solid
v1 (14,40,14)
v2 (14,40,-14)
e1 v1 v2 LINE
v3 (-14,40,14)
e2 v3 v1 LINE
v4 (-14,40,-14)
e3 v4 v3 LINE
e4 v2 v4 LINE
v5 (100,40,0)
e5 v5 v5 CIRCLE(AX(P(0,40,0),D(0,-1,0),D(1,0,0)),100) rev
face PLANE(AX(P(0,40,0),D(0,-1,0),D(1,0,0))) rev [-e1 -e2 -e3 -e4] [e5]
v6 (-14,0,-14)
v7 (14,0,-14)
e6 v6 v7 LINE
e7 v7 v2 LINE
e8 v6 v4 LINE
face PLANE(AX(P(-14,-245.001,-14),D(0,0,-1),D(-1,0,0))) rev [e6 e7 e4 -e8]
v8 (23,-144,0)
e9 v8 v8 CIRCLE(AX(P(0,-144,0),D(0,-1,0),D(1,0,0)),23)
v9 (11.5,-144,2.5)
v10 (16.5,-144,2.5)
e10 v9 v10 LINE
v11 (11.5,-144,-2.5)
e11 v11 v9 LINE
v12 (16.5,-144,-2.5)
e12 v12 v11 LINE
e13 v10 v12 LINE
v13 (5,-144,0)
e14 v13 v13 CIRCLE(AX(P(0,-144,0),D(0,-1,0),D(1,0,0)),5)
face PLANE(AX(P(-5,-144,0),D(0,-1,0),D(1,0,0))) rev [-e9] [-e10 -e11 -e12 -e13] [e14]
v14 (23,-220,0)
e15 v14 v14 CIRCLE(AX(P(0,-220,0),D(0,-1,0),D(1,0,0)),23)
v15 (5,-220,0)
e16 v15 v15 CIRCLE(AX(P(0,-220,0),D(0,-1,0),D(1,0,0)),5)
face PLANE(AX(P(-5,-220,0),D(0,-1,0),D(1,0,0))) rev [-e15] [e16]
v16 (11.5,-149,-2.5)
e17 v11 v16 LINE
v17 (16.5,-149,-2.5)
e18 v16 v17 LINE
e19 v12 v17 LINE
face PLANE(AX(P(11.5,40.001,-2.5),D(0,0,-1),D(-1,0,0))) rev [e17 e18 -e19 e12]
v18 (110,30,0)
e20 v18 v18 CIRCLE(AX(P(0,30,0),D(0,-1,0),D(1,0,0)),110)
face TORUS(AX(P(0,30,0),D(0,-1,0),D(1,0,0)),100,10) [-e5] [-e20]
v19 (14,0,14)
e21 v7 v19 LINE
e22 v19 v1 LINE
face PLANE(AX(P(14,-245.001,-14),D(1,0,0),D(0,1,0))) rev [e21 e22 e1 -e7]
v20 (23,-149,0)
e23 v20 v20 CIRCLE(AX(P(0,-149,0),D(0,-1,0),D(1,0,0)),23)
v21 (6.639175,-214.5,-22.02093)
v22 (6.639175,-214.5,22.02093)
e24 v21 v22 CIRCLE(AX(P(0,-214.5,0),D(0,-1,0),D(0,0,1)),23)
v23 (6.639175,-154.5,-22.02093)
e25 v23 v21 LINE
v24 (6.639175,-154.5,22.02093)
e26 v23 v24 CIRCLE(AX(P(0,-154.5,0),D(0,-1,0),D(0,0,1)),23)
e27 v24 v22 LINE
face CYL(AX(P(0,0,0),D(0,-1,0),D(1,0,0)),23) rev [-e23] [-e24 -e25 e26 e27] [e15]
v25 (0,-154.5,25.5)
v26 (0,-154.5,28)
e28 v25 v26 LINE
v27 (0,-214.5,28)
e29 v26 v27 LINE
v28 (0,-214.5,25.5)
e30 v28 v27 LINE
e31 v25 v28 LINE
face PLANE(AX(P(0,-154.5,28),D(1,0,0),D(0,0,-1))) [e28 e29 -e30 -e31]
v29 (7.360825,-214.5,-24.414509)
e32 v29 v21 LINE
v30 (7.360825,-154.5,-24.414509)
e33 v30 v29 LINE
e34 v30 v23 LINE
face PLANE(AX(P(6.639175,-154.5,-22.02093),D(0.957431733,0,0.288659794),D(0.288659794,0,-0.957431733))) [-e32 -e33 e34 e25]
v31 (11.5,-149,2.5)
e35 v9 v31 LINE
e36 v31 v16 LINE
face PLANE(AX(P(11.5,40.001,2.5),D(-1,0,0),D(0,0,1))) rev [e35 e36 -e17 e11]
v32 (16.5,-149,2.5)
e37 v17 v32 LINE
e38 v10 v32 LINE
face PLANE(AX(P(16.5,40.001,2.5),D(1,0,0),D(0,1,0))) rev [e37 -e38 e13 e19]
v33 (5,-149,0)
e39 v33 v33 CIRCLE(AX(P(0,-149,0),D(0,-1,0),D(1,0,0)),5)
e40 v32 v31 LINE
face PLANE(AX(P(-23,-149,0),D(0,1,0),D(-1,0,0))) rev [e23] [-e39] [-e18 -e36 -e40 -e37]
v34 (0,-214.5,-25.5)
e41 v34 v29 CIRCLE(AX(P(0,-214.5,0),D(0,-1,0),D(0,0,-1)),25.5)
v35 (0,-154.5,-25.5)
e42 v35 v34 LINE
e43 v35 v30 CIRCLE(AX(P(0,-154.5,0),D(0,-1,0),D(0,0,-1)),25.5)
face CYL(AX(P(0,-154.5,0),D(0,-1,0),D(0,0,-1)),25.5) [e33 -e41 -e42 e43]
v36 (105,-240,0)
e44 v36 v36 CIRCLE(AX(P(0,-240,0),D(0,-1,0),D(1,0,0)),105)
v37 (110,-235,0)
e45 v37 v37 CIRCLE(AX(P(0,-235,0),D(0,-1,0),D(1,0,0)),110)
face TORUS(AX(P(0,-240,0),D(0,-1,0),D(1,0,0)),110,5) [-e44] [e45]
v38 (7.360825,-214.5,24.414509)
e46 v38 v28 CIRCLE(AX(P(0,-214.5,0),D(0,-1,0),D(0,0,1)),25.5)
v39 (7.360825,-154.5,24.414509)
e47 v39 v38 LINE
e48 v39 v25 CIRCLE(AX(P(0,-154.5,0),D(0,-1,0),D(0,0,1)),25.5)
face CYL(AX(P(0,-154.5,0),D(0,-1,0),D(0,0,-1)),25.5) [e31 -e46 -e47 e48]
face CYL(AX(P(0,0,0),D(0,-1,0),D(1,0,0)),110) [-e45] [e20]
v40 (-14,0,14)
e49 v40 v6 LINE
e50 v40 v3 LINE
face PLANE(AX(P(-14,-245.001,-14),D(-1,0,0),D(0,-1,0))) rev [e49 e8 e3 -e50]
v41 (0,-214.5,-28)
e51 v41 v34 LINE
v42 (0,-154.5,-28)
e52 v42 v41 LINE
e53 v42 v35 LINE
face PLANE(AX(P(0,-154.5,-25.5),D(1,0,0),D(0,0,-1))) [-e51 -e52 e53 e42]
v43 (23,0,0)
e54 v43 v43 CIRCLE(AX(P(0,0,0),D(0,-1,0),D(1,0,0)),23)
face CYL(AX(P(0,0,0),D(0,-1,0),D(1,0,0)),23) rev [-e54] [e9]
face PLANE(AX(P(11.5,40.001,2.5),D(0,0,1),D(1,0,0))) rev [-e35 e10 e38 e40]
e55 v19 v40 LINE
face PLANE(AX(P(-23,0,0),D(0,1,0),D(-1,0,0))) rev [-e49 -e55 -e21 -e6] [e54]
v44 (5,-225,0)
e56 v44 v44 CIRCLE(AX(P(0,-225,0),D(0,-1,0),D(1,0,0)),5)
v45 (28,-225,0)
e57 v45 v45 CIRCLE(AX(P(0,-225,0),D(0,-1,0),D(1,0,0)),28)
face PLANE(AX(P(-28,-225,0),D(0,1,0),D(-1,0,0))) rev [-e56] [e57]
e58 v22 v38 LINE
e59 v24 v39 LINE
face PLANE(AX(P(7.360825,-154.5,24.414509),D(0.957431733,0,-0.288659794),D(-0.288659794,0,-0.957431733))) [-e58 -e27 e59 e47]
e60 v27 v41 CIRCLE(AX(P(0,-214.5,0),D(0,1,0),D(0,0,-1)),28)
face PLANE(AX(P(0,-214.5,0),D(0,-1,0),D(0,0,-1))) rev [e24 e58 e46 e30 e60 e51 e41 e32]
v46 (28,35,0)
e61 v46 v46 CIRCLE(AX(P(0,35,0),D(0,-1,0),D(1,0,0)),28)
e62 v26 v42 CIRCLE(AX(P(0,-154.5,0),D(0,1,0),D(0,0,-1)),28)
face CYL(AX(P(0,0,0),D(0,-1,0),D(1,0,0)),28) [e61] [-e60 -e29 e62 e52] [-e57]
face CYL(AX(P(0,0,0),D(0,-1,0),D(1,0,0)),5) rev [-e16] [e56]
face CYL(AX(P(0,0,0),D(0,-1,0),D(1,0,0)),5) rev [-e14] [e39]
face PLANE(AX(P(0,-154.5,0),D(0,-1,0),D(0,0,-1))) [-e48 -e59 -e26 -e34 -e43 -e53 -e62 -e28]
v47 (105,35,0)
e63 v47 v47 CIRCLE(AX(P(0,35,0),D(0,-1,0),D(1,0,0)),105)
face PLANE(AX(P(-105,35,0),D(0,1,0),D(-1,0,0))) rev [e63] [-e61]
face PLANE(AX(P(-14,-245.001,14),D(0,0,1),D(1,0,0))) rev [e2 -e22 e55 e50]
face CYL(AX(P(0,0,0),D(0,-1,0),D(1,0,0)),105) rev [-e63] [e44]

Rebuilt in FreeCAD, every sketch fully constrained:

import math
import FreeCAD as App
import Part
import Sketcher


def edges_at(feature, points):
    """Names of the edges that pass closest to the given points."""
    edges = feature.Shape.Edges
    near = lambda p: min(range(len(edges)), key=lambda i: edges[i].distToShape(Part.Vertex(*p))[0])
    return sorted({f"Edge{near(p) + 1}" for p in points})


def add_polygon(sketch, points):
    """Adds a closed chain of lines whose ends are joined by coincident constraints."""
    first, n = sketch.GeometryCount, len(points)
    for a, b in zip(points, points[1:] + points[:1]):
        sketch.addGeometry(Part.LineSegment(App.Vector(*a, 0), App.Vector(*b, 0)), False)
    for i in range(n):
        sketch.addConstraint(Sketcher.Constraint("Coincident", first + i, 2, first + (i + 1) % n, 1))

doc = App.newDocument("Part")
body = doc.addObject("PartDesign::Body", "Body")

# Sketch on XY plane
sketch1 = body.newObject("Sketcher::SketchObject", "Sketch")
sketch1.AttachmentSupport = (doc.getObject("XY_Plane"), [""])
sketch1.MapMode = "FlatFace"
sketch1.addGeometry([
    Part.LineSegment(App.Vector(0, 0, 0), App.Vector(0, 40, 0)),  # 0
    Part.LineSegment(App.Vector(0, 40, 0), App.Vector(-110, 40, 0)),  # 1
    Part.LineSegment(App.Vector(-110, 40, 0), App.Vector(-110, -235, 0)),  # 2
    Part.ArcOfCircle(Part.Circle(App.Vector(-110, -240, 0), App.Vector(0, 0, 1), 5), math.radians(90), math.radians(360)),  # 3
    Part.LineSegment(App.Vector(-105, -240, 0), App.Vector(-105, 35, 0)),  # 4
    Part.LineSegment(App.Vector(-105, 35, 0), App.Vector(-28, 35, 0)),  # 5
    Part.LineSegment(App.Vector(-28, 35, 0), App.Vector(-28, -225, 0)),  # 6
    Part.LineSegment(App.Vector(-28, -225, 0), App.Vector(-5, -225, 0)),  # 7
    Part.LineSegment(App.Vector(-5, -225, 0), App.Vector(-5, -220, 0)),  # 8
    Part.LineSegment(App.Vector(-5, -220, 0), App.Vector(-23, -220, 0)),  # 9
    Part.LineSegment(App.Vector(-23, -220, 0), App.Vector(-23, -149, 0)),  # 10
    Part.LineSegment(App.Vector(-23, -149, 0), App.Vector(-5, -149, 0)),  # 11
    Part.LineSegment(App.Vector(-5, -149, 0), App.Vector(-5, -144, 0)),  # 12
    Part.LineSegment(App.Vector(-5, -144, 0), App.Vector(-23, -144, 0)),  # 13
    Part.LineSegment(App.Vector(-23, -144, 0), App.Vector(-23, 0, 0)),  # 14
    Part.LineSegment(App.Vector(-23, 0, 0), App.Vector(0, 0, 0)),  # 15
], False)
sketch1.addConstraint([
    Sketcher.Constraint("Coincident", 0, 2, 1, 1),
    Sketcher.Constraint("Coincident", 1, 2, 2, 1),
    Sketcher.Constraint("Coincident", 2, 2, 3, 1),
    Sketcher.Constraint("Tangent", 3, 2, 4, 1),
    Sketcher.Constraint("Coincident", 4, 2, 5, 1),
    Sketcher.Constraint("Coincident", 5, 2, 6, 1),
    Sketcher.Constraint("Coincident", 6, 2, 7, 1),
    Sketcher.Constraint("Coincident", 7, 2, 8, 1),
    Sketcher.Constraint("Coincident", 8, 2, 9, 1),
    Sketcher.Constraint("Coincident", 9, 2, 10, 1),
    Sketcher.Constraint("Coincident", 10, 2, 11, 1),
    Sketcher.Constraint("Coincident", 11, 2, 12, 1),
    Sketcher.Constraint("Coincident", 12, 2, 13, 1),
    Sketcher.Constraint("Coincident", 13, 2, 14, 1),
    Sketcher.Constraint("Coincident", 14, 2, 15, 1),
    Sketcher.Constraint("Coincident", 15, 2, 0, 1),
    Sketcher.Constraint("Vertical", 0),
    Sketcher.Constraint("Horizontal", 1),
    Sketcher.Constraint("Vertical", 2),
    Sketcher.Constraint("Vertical", 4),
    Sketcher.Constraint("Horizontal", 5),
    Sketcher.Constraint("Vertical", 6),
    Sketcher.Constraint("Horizontal", 7),
    Sketcher.Constraint("Vertical", 8),
    Sketcher.Constraint("Horizontal", 9),
    Sketcher.Constraint("Vertical", 10),
    Sketcher.Constraint("Horizontal", 11),
    Sketcher.Constraint("Vertical", 12),
    Sketcher.Constraint("Horizontal", 13),
    Sketcher.Constraint("Vertical", 14),
    Sketcher.Constraint("Horizontal", 15),
    Sketcher.Constraint("Coincident", 15, 2, -1, 1),
    Sketcher.Constraint("Vertical", 3, 3, 1, 2),
    Sketcher.Constraint("Vertical", 8, 2, 11, 2),
    Sketcher.Constraint("Vertical", 10, 2, 13, 2),
    Sketcher.Constraint("Equal", 7, 15),
    Sketcher.Constraint("Equal", 2, 4),
    Sketcher.Constraint("Equal", 8, 12),
    Sketcher.Constraint("Radius", 3, 5.0),
    Sketcher.Constraint("DistanceX", 1, 2, 1, 1, 110.0),
    Sketcher.Constraint("DistanceX", 5, 1, 5, 2, 77.0),
    Sketcher.Constraint("DistanceX", 7, 1, 7, 2, 23.0),
    Sketcher.Constraint("DistanceY", 0, 1, 0, 2, 40.0),
    Sketcher.Constraint("DistanceY", 2, 2, 2, 1, 275.0),
    Sketcher.Constraint("DistanceY", 6, 2, 6, 1, 260.0),
    Sketcher.Constraint("DistanceY", 8, 1, 8, 2, 5.0),
    Sketcher.Constraint("DistanceY", 10, 1, 10, 2, 71.0),
])
revolution = body.newObject("PartDesign::Revolution", "Revolution")
revolution.Profile = sketch1
revolution.ReferenceAxis = (sketch1, ["V_Axis"])
revolution.Angle = 360

# Sketch on XZ plane
sketch2 = body.newObject("Sketcher::SketchObject", "Sketch001")
sketch2.AttachmentSupport = (doc.getObject("XZ_Plane"), [""])
sketch2.MapMode = "FlatFace"
sketch2.AttachmentOffset = App.Placement(App.Vector(0, 0, -40), App.Rotation())
add_polygon(sketch2, [(-14, -14), (-14, 14), (14, 14), (14, -14)])  # lines 0-3
sketch2.addConstraint([
    Sketcher.Constraint("Vertical", 0),
    Sketcher.Constraint("Horizontal", 1),
    Sketcher.Constraint("Vertical", 2),
    Sketcher.Constraint("Horizontal", 3),
    Sketcher.Constraint("Symmetric", 0, 2, 2, 2, -1, 1),
    Sketcher.Constraint("Equal", 3, 0),
    Sketcher.Constraint("DistanceX", 1, 1, 1, 2, 28.0),
])
pocket1 = body.newObject("PartDesign::Pocket", "Pocket")
pocket1.Profile = sketch2
pocket1.Type = "UpToFirst"
pocket1.Reversed = True

# Sketch on XZ plane
sketch3 = body.newObject("Sketcher::SketchObject", "Sketch002")
sketch3.AttachmentSupport = (doc.getObject("XZ_Plane"), [""])
sketch3.MapMode = "FlatFace"
sketch3.AttachmentOffset = App.Placement(App.Vector(0, 0, 214.5), App.Rotation())
sketch3.addGeometry([
    Part.LineSegment(App.Vector(0, 25.5, 0), App.Vector(0, 28, 0)),  # 0
    Part.ArcOfCircle(Part.Circle(App.Vector(0, 0, 0), App.Vector(0, 0, 1), 28), math.radians(-90), math.radians(90)),  # 1
    Part.LineSegment(App.Vector(0, -28, 0), App.Vector(0, -25.5, 0)),  # 2
    Part.ArcOfCircle(Part.Circle(App.Vector(0, 0, 0), App.Vector(0, 0, 1), 25.5), math.radians(-90), math.radians(-73.222263)),  # 3
    Part.LineSegment(App.Vector(7.360825, -24.414509, 0), App.Vector(6.639175, -22.02093, 0)),  # 4
    Part.ArcOfCircle(Part.Circle(App.Vector(0, 0, 0), App.Vector(0, 0, 1), 23), math.radians(-73.222263), math.radians(73.222263)),  # 5
    Part.LineSegment(App.Vector(6.639175, 22.02093, 0), App.Vector(7.360825, 24.414509, 0)),  # 6
    Part.ArcOfCircle(Part.Circle(App.Vector(0, 0, 0), App.Vector(0, 0, 1), 25.5), math.radians(73.222263), math.radians(90)),  # 7
], False)
sketch3.addConstraint([
    Sketcher.Constraint("Coincident", 0, 2, 1, 2),
    Sketcher.Constraint("Coincident", 1, 1, 2, 1),
    Sketcher.Constraint("Coincident", 2, 2, 3, 1),
    Sketcher.Constraint("Coincident", 3, 2, 4, 1),
    Sketcher.Constraint("Coincident", 4, 2, 5, 1),
    Sketcher.Constraint("Coincident", 5, 2, 6, 1),
    Sketcher.Constraint("Coincident", 6, 2, 7, 1),
    Sketcher.Constraint("Coincident", 7, 2, 0, 1),
    Sketcher.Constraint("Vertical", 0),
    Sketcher.Constraint("Vertical", 2),
    Sketcher.Constraint("Coincident", 1, 3, -1, 1),
    Sketcher.Constraint("Coincident", 3, 3, -1, 1),
    Sketcher.Constraint("Coincident", 5, 3, -1, 1),
    Sketcher.Constraint("Coincident", 7, 3, -1, 1),
    Sketcher.Constraint("Equal", 3, 7),
    Sketcher.Constraint("PointOnObject", 0, 2, -2),
    Sketcher.Constraint("PointOnObject", 1, 1, -2),
    Sketcher.Constraint("Vertical", 4, 2, 5, 2),
    Sketcher.Constraint("Vertical", 3, 2, 6, 2),
    Sketcher.Constraint("Radius", 1, 28.0),
    Sketcher.Constraint("Radius", 5, 23.0),
    Sketcher.Constraint("Radius", 3, 25.5),
    Sketcher.Constraint("DistanceY", 3, 2, -1, 1, 24.414509),
    Sketcher.Constraint("DistanceY", 4, 2, -1, 1, 22.02093),
])
pocket2 = body.newObject("PartDesign::Pocket", "Pocket001")
pocket2.Profile = sketch3
pocket2.Length = 60

# Sketch on XZ plane
sketch4 = body.newObject("Sketcher::SketchObject", "Sketch003")
sketch4.AttachmentSupport = (doc.getObject("XZ_Plane"), [""])
sketch4.MapMode = "FlatFace"
sketch4.AttachmentOffset = App.Placement(App.Vector(0, 0, 149), App.Rotation())
add_polygon(sketch4, [(11.5, 2.5), (11.5, -2.5), (16.5, -2.5), (16.5, 2.5)])  # lines 0-3
sketch4.addConstraint([
    Sketcher.Constraint("Vertical", 0),
    Sketcher.Constraint("Horizontal", 1),
    Sketcher.Constraint("Vertical", 2),
    Sketcher.Constraint("Horizontal", 3),
    Sketcher.Constraint("Equal", 3, 0),
    Sketcher.Constraint("DistanceX", 1, 1, 1, 2, 5.0),
    Sketcher.Constraint("DistanceX", -1, 1, 0, 2, 11.5),
    Sketcher.Constraint("DistanceY", 0, 2, -1, 1, 2.5),
])
pocket3 = body.newObject("PartDesign::Pocket", "Pocket002")
pocket3.Profile = sketch4
pocket3.Type = "UpToFirst"
doc.recompute()

fillet = body.newObject("PartDesign::Fillet", "Fillet")
fillet.Base = (pocket3, edges_at(pocket3, [(110, 40, 0)]))
fillet.Radius = 10

doc.recompute()
